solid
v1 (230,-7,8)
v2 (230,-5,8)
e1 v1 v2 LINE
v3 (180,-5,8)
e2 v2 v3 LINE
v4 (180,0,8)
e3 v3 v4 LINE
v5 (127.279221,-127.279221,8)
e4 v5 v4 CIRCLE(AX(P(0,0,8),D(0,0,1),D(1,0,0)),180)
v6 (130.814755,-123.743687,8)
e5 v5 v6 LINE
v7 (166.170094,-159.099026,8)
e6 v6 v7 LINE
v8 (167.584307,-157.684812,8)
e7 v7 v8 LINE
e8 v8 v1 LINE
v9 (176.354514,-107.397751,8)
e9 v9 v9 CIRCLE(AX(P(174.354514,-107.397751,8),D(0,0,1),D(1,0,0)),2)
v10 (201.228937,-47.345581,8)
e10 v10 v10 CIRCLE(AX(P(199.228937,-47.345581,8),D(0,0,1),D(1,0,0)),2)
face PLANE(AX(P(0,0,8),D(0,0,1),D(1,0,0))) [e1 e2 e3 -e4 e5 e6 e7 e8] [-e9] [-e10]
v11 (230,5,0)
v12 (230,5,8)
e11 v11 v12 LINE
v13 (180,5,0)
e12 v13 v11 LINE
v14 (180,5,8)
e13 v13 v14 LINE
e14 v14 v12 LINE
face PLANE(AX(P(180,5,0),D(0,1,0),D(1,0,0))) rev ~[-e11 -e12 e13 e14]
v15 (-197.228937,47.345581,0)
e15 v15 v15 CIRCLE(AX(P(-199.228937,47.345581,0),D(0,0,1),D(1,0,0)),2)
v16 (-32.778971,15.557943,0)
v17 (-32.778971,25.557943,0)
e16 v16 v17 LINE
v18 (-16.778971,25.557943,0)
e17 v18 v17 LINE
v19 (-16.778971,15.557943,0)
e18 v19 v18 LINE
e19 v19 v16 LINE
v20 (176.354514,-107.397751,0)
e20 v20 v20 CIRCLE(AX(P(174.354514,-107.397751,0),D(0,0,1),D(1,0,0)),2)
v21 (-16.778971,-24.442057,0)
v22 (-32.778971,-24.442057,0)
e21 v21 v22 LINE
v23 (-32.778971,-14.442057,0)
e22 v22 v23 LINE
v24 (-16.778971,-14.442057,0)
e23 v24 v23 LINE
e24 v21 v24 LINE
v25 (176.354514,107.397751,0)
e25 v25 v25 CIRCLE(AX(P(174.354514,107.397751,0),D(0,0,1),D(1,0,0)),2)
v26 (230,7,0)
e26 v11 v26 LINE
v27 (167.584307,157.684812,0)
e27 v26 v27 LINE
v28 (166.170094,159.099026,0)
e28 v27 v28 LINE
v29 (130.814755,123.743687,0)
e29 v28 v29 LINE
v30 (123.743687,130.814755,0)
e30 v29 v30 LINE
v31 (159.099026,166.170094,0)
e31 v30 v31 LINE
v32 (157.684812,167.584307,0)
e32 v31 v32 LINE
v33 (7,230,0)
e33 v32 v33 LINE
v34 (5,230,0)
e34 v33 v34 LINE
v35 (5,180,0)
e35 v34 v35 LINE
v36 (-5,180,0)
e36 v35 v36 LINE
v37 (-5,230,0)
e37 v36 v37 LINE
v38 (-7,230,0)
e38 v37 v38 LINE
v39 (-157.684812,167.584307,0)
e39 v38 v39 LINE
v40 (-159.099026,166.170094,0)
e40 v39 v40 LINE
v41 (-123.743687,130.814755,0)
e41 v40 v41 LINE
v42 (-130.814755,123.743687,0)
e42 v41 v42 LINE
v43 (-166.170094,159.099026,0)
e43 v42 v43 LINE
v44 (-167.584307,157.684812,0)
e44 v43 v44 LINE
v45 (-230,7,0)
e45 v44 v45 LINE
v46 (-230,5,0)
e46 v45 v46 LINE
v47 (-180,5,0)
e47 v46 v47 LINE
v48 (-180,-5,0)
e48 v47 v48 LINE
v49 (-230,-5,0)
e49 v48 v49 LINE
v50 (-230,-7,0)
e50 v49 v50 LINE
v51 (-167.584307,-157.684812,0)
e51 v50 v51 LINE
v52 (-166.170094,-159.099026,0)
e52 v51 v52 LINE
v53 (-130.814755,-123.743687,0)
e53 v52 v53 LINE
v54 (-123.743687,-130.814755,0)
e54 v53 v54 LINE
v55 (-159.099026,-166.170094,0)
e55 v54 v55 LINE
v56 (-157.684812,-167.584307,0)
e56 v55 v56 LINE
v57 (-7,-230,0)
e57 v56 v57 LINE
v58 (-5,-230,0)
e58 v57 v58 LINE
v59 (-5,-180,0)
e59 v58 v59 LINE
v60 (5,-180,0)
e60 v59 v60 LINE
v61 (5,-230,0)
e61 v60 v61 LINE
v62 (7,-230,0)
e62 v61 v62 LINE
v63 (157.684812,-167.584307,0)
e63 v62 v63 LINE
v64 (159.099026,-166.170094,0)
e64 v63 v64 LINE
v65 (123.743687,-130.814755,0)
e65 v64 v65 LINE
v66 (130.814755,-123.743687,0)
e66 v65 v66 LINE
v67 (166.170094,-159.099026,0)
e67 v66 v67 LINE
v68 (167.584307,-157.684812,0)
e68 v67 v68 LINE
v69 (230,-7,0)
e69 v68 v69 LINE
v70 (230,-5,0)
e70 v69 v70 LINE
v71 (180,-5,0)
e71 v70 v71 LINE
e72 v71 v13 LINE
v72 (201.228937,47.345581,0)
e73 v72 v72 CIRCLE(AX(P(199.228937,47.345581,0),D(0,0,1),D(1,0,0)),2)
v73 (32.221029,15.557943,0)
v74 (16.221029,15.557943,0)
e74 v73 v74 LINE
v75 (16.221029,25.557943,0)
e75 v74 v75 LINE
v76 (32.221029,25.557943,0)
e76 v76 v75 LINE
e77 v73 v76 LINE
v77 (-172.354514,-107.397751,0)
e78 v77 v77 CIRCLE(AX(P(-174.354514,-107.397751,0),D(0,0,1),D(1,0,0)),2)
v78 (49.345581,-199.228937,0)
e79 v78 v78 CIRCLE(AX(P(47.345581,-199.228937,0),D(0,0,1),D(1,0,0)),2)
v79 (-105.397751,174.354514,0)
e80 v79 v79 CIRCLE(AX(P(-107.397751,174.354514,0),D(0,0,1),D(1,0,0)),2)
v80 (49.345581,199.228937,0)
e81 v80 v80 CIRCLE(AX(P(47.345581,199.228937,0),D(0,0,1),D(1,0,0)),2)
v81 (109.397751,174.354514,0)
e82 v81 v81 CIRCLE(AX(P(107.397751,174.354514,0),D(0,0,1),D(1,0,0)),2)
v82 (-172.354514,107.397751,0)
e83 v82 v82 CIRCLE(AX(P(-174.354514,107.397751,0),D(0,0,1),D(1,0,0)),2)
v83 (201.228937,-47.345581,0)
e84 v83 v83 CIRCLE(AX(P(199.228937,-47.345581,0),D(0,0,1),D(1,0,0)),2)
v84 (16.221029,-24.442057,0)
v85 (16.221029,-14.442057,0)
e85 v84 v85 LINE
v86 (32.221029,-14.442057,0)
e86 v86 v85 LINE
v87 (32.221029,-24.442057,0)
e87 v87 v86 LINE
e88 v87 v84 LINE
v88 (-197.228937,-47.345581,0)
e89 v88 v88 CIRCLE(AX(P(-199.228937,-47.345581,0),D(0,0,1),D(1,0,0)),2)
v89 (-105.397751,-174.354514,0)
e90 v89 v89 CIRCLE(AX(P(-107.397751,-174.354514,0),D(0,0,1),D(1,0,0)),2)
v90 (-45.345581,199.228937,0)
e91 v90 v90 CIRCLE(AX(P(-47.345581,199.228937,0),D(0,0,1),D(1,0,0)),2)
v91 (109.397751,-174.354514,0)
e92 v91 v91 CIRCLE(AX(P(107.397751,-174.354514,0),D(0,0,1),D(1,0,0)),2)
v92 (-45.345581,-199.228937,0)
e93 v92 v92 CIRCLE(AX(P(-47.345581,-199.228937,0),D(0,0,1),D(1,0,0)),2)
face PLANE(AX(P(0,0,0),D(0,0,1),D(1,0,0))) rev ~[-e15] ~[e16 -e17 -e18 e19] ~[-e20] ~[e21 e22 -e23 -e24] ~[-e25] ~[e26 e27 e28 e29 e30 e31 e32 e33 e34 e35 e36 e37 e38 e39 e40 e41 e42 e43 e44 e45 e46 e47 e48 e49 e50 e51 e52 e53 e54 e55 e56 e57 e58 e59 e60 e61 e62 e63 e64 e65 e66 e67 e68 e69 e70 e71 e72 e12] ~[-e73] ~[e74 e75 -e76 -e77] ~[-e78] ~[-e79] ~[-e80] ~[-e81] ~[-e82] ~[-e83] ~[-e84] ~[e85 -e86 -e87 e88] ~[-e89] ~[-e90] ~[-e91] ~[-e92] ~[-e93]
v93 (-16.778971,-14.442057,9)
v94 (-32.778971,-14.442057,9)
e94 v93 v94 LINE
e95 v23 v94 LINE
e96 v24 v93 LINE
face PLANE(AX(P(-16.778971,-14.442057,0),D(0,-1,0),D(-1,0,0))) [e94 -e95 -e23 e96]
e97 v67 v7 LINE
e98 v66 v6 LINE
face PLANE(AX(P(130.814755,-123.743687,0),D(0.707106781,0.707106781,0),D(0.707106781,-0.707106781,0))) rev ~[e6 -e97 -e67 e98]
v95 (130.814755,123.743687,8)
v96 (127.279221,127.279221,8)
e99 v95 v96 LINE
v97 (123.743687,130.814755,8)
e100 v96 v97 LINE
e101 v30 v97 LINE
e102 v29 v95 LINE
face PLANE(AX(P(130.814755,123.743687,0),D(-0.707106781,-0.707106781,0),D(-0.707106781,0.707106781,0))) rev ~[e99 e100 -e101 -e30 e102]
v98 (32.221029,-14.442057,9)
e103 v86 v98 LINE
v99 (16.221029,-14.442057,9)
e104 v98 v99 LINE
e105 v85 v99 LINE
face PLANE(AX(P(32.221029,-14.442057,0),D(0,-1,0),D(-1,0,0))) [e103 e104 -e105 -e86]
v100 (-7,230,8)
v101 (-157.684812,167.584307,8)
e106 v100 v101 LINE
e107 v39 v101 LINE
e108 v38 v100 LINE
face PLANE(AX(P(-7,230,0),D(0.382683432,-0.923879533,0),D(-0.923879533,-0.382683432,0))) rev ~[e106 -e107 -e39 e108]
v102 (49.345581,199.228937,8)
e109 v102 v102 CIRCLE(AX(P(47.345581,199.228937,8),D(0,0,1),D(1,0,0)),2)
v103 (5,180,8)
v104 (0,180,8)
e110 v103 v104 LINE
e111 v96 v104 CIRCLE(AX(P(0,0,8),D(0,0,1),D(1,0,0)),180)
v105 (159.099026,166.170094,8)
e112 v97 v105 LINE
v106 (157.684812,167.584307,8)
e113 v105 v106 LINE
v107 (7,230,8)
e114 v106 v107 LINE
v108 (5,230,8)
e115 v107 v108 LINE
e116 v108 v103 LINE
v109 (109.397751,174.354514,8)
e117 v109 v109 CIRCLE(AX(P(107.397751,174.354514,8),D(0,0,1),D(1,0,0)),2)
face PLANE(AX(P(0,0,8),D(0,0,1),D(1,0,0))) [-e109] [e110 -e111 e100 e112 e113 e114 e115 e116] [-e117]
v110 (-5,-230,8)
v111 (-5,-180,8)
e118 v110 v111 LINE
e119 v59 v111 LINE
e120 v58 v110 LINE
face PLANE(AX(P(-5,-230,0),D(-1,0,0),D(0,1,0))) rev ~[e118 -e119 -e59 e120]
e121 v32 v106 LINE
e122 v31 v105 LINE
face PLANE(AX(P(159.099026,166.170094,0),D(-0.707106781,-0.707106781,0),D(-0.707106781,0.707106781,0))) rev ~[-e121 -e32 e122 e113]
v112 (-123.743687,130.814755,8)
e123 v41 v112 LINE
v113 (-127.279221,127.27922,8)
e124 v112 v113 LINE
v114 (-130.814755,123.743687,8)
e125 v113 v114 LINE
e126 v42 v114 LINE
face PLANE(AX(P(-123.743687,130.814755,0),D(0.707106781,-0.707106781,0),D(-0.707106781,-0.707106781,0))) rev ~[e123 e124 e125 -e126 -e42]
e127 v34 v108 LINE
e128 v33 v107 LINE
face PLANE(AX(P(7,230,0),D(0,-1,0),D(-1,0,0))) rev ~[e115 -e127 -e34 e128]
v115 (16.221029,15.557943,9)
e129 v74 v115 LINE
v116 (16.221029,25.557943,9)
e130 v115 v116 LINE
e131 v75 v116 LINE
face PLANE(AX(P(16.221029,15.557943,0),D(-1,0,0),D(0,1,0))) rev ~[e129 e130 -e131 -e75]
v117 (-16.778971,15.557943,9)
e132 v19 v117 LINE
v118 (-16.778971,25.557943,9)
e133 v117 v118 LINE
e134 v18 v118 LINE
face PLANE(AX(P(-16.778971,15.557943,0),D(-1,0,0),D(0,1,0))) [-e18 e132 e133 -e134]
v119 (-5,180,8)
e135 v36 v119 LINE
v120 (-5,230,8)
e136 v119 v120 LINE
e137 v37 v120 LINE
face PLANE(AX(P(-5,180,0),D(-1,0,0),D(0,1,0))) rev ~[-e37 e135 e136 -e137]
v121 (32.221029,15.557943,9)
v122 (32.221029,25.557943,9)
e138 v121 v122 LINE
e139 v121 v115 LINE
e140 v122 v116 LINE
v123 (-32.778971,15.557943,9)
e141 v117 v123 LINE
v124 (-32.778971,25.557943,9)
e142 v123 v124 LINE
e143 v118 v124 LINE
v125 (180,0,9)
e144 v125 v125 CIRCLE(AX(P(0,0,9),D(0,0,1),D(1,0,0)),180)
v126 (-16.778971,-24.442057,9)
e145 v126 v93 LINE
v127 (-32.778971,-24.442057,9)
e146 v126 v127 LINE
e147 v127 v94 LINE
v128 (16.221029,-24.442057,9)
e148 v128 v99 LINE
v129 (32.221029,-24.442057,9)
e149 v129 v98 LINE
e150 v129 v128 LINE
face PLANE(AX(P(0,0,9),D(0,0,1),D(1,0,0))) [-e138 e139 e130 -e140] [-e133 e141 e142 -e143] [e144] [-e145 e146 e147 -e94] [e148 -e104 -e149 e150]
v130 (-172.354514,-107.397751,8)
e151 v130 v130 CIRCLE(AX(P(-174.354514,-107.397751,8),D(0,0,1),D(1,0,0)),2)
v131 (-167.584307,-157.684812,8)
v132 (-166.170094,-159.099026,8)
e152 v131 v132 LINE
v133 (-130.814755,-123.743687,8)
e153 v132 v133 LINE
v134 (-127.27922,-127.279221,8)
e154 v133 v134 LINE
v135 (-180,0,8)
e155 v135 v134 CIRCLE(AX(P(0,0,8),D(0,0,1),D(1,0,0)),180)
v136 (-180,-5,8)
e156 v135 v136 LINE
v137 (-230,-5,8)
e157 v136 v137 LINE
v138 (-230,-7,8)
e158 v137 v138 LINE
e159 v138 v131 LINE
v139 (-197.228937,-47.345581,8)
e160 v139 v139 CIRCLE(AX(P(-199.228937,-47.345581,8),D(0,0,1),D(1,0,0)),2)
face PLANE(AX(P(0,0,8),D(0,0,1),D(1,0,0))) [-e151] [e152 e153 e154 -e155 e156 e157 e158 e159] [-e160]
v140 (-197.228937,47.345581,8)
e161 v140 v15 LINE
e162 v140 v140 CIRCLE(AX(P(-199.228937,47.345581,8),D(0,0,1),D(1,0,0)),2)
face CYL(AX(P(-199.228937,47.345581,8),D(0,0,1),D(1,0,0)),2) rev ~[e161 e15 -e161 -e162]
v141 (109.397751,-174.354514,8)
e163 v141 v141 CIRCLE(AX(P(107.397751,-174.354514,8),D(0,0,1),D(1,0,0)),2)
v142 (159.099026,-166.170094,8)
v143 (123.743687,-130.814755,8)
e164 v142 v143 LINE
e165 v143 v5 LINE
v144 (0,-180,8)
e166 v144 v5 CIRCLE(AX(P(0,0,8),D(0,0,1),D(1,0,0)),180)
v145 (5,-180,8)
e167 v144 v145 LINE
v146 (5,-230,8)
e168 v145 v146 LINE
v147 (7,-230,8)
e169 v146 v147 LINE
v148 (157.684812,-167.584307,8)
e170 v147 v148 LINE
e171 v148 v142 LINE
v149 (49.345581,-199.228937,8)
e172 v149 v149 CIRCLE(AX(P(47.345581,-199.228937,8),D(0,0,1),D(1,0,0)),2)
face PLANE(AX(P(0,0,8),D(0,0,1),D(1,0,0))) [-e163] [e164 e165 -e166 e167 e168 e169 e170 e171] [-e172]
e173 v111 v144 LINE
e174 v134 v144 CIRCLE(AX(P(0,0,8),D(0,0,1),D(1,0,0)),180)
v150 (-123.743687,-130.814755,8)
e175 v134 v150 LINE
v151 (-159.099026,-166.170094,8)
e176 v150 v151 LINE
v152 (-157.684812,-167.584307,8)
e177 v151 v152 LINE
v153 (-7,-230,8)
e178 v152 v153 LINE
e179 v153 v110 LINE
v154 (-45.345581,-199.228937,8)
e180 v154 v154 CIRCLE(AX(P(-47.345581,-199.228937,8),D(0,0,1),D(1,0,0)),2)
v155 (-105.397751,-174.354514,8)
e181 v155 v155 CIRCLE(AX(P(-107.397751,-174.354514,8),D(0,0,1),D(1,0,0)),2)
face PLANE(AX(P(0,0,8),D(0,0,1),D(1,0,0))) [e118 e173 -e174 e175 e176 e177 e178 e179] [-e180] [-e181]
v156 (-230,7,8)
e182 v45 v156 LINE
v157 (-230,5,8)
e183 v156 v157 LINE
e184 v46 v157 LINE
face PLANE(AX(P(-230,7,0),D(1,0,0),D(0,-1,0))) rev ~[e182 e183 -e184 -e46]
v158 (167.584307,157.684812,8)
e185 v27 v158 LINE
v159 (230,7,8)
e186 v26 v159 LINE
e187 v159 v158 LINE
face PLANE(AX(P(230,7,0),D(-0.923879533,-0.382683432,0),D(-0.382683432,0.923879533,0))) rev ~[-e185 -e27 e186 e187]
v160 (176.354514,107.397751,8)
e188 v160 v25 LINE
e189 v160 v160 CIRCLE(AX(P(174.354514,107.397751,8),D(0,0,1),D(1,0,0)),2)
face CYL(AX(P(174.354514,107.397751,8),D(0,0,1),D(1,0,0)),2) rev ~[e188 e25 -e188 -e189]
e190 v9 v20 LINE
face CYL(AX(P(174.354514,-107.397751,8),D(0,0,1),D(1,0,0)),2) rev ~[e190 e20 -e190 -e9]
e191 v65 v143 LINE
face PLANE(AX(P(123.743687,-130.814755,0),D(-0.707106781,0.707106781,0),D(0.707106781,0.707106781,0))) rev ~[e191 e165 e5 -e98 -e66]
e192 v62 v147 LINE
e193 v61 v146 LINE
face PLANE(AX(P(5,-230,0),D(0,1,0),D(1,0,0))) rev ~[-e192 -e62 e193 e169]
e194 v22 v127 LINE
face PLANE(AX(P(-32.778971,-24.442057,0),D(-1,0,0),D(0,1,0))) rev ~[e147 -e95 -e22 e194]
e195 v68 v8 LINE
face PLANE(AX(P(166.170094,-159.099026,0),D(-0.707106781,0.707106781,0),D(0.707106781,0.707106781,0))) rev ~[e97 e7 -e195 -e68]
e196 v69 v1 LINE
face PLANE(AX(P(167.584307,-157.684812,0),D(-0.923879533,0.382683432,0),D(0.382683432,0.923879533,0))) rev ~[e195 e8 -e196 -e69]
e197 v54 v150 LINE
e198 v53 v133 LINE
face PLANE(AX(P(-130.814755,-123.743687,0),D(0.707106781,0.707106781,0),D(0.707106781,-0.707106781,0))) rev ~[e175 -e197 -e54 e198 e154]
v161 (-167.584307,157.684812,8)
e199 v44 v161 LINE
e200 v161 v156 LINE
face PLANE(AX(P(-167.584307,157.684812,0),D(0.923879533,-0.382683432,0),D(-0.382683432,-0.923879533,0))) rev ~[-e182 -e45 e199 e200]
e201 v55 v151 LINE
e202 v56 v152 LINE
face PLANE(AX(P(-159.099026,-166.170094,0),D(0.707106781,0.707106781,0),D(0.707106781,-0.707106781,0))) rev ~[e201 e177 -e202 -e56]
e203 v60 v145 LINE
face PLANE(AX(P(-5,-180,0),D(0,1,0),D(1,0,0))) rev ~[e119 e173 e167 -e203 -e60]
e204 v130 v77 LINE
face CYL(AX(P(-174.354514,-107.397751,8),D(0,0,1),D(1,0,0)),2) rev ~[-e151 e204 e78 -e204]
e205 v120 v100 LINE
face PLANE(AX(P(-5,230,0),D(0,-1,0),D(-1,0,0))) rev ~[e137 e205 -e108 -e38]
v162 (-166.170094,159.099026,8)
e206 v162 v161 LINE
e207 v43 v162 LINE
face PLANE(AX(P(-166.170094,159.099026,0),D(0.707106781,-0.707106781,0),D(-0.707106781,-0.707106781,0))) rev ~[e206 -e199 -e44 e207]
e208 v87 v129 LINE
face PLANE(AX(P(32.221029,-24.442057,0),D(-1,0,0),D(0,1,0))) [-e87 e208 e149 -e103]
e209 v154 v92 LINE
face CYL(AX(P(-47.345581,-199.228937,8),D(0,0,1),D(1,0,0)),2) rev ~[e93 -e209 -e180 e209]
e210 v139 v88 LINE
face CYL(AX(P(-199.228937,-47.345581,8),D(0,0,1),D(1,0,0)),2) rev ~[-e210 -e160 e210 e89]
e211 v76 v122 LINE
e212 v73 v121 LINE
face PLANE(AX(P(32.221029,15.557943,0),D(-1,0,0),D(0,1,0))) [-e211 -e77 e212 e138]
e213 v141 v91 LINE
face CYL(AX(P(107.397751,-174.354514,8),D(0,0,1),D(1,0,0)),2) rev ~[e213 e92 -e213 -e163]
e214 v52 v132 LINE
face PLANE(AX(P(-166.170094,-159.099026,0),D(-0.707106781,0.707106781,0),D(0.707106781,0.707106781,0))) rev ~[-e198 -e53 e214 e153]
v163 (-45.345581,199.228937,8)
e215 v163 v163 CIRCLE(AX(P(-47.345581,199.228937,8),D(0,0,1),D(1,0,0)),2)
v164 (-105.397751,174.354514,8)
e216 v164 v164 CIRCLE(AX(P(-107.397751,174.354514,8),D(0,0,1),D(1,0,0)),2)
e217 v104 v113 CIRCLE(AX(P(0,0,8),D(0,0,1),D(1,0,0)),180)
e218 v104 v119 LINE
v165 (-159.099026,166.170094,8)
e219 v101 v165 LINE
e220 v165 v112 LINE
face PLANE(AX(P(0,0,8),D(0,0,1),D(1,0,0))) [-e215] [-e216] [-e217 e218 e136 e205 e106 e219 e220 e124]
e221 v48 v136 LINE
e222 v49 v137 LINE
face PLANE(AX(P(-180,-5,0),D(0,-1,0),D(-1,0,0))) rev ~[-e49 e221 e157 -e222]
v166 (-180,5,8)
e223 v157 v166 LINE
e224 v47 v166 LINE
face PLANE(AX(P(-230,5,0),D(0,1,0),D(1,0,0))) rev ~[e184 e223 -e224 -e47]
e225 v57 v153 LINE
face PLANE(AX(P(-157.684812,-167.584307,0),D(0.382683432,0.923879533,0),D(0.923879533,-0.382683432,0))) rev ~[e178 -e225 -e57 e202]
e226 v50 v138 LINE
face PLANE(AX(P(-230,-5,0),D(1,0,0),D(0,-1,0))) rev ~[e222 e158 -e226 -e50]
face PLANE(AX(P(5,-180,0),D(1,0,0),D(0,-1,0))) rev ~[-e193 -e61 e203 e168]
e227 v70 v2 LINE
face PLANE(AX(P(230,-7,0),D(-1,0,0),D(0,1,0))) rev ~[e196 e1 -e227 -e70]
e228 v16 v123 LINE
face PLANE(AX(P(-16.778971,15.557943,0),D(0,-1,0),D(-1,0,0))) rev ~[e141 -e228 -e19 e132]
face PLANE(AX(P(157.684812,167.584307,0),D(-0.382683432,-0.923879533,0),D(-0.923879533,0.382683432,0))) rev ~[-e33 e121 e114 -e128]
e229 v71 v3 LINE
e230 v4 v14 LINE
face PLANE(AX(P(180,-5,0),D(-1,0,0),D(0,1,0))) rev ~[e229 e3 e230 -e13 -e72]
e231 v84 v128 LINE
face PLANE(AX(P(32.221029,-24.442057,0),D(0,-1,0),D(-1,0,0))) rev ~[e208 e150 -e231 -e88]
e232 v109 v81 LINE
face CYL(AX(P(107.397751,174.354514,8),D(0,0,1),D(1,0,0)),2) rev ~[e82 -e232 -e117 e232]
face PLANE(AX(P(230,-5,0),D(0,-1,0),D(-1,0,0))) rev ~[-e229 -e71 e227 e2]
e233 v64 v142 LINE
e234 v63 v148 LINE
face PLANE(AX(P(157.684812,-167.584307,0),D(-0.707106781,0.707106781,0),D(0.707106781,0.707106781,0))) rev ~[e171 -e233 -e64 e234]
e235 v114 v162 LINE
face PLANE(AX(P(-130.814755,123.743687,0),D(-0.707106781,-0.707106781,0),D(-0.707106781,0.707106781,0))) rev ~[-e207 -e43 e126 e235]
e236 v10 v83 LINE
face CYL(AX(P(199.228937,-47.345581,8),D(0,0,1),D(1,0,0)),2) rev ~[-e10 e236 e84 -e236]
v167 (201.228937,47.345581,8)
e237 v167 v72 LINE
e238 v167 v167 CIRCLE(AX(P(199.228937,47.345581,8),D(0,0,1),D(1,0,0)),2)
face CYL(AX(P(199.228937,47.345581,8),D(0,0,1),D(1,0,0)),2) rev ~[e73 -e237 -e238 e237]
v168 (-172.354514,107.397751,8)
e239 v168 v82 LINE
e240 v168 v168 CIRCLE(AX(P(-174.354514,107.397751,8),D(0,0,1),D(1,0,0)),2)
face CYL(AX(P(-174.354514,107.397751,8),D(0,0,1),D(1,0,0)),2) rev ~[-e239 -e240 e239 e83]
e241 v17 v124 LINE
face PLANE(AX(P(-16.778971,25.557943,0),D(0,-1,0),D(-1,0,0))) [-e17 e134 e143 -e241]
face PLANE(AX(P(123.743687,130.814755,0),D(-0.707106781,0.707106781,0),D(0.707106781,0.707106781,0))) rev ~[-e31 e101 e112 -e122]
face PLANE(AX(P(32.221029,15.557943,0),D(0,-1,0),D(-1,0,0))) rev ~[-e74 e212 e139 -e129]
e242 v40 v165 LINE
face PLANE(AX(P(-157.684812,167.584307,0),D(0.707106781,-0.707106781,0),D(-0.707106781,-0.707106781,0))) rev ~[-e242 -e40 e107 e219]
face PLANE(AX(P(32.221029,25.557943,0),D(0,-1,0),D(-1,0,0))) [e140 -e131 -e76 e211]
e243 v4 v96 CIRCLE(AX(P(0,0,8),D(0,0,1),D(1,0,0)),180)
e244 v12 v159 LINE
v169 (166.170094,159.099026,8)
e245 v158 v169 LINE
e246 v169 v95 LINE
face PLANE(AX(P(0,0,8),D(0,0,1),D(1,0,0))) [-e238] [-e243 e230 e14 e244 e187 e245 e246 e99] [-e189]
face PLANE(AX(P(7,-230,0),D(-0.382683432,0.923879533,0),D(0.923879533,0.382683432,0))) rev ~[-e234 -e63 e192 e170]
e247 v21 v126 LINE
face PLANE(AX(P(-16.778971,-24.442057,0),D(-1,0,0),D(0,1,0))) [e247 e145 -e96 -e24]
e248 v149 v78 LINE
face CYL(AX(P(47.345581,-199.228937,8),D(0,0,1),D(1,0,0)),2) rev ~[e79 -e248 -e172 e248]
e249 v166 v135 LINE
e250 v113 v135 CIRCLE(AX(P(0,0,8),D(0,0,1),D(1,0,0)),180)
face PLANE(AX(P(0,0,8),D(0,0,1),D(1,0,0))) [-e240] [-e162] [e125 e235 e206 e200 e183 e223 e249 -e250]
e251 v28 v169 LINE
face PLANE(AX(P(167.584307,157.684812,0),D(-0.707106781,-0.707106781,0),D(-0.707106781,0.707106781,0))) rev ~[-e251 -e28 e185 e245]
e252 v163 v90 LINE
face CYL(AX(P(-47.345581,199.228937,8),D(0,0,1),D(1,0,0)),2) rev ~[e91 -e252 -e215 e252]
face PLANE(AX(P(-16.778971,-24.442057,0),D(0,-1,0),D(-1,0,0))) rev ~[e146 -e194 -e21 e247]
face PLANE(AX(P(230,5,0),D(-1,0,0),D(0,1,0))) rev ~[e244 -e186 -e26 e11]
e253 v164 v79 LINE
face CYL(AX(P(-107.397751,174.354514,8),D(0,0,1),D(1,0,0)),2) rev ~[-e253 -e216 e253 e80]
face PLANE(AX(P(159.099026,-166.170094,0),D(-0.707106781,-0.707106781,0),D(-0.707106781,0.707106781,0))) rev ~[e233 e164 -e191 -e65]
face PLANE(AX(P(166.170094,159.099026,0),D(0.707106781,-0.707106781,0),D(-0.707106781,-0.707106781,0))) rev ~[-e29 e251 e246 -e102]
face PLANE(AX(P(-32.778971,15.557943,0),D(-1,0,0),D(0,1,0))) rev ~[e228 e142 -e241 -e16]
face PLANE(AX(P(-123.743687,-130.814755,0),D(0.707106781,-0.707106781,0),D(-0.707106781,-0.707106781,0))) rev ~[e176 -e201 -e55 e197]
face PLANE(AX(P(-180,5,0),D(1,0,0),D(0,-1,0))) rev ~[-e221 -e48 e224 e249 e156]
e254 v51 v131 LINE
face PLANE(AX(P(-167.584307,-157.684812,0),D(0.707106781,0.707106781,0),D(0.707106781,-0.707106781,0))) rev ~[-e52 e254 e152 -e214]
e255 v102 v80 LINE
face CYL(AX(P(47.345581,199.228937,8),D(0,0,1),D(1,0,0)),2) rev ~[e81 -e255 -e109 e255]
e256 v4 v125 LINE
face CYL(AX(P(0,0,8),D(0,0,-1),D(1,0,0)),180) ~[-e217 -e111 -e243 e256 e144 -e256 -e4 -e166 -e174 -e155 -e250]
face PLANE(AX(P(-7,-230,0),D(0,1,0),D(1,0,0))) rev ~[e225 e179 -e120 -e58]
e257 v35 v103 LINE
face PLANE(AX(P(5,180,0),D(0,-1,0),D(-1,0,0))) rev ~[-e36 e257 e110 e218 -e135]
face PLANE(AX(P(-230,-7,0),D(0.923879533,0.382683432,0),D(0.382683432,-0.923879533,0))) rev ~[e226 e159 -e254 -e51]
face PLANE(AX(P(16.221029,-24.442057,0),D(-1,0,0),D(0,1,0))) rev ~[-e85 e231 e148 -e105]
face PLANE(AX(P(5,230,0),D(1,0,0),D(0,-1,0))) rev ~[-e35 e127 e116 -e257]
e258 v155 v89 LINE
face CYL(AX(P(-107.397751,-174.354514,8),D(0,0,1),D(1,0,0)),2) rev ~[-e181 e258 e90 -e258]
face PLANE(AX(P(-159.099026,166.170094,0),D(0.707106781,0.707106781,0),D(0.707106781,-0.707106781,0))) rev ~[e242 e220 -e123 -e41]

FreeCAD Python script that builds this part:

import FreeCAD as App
import Part
import Sketcher

V = App.Vector
Q = App.Units.Quantity


def add_polygon(sketch, points):
    """Adds a closed chain of lines whose ends are joined by coincident constraints."""
    first, n = sketch.GeometryCount, len(points)
    for a, b in zip(points, points[1:] + points[:1]):
        sketch.addGeometry(Part.LineSegment(App.Vector(*a, 0), App.Vector(*b, 0)), False)
    for i in range(n):
        sketch.addConstraint(Sketcher.Constraint("Coincident", first + i, 2, first + (i + 1) % n, 1))

doc = App.newDocument("Part")
body = doc.addObject("PartDesign::Body", "Body")

sketch1 = body.newObject("Sketcher::SketchObject", "Sketch")
sketch1.AttachmentSupport = (doc.getObject("XY_Plane"), [""])
sketch1.MapMode = "FlatFace"
add_polygon(sketch1, [(5, 230), (5, 180), (-5, 180), (-5, 230), (-7, 230), (-157.684812, 167.584307), (-159.099026, 166.170094), (-123.743687, 130.814755), (-130.814755, 123.743687), (-166.170094, 159.099026), (-167.584307, 157.684812), (-230, 7), (-230, 5), (-180, 5), (-180, -5), (-230, -5), (-230, -7), (-167.584307, -157.684812), (-166.170094, -159.099026), (-130.814755, -123.743687), (-123.743687, -130.814755), (-159.099026, -166.170094), (-157.684812, -167.584307), (-7, -230), (-5, -230), (-5, -180), (5, -180), (5, -230), (7, -230), (157.684812, -167.584307), (159.099026, -166.170094), (123.743687, -130.814755), (130.814755, -123.743687), (166.170094, -159.099026), (167.584307, -157.684812), (230, -7), (230, -5), (180, -5), (180, 5), (230, 5), (230, 7), (167.584307, 157.684812), (166.170094, 159.099026), (130.814755, 123.743687), (123.743687, 130.814755), (159.099026, 166.170094), (157.684812, 167.584307), (7, 230)])
sketch1.addConstraint([
    Sketcher.Constraint("Vertical", 0),
    Sketcher.Constraint("Horizontal", 1),
    Sketcher.Constraint("Vertical", 2),
    Sketcher.Constraint("Horizontal", 3),
    Sketcher.Constraint("Vertical", 11),
    Sketcher.Constraint("Horizontal", 12),
    Sketcher.Constraint("Vertical", 13),
    Sketcher.Constraint("Horizontal", 14),
    Sketcher.Constraint("Vertical", 15),
    Sketcher.Constraint("Horizontal", 23),
    Sketcher.Constraint("Vertical", 24),
    Sketcher.Constraint("Horizontal", 25),
    Sketcher.Constraint("Vertical", 26),
    Sketcher.Constraint("Horizontal", 27),
    Sketcher.Constraint("Vertical", 35),
    Sketcher.Constraint("Horizontal", 36),
    Sketcher.Constraint("Vertical", 37),
    Sketcher.Constraint("Horizontal", 38),
    Sketcher.Constraint("Vertical", 39),
    Sketcher.Constraint("Horizontal", 47),
    Sketcher.Constraint("Symmetric", 0, 2, 24, 2, -1, 1),
    Sketcher.Constraint("Symmetric", 2, 2, 26, 2, -1, 1),
    Sketcher.Constraint("Symmetric", 4, 2, 28, 2, -1, 1),
    Sketcher.Constraint("Symmetric", 5, 2, 29, 2, -1, 1),
    Sketcher.Constraint("Symmetric", 6, 2, 30, 2, -1, 1),
    Sketcher.Constraint("Symmetric", 7, 2, 31, 2, -1, 1),
    Sketcher.Constraint("Symmetric", 8, 2, 32, 2, -1, 1),
    Sketcher.Constraint("Symmetric", 9, 2, 33, 2, -1, 1),
    Sketcher.Constraint("Symmetric", 10, 2, 34, 2, -1, 1),
    Sketcher.Constraint("Symmetric", 12, 2, 36, 2, -1, 1),
    Sketcher.Constraint("Symmetric", 14, 2, 38, 2, -1, 1),
    Sketcher.Constraint("Symmetric", 16, 2, 40, 2, -1, 1),
    Sketcher.Constraint("Symmetric", 17, 2, 41, 2, -1, 1),
    Sketcher.Constraint("Symmetric", 18, 2, 42, 2, -1, 1),
    Sketcher.Constraint("Symmetric", 19, 2, 43, 2, -1, 1),
    Sketcher.Constraint("Symmetric", 20, 2, 44, 2, -1, 1),
    Sketcher.Constraint("Symmetric", 21, 2, 45, 2, -1, 1),
    Sketcher.Constraint("Symmetric", 22, 2, 46, 2, -1, 1),
    Sketcher.Constraint("Symmetric", 23, 2, 26, 2, -2),
    Sketcher.Constraint("Symmetric", 21, 2, 28, 2, -2),
    Sketcher.Constraint("Symmetric", 20, 2, 29, 2, -2),
    Sketcher.Constraint("Symmetric", 19, 2, 30, 2, -2),
    Sketcher.Constraint("Symmetric", 18, 2, 31, 2, -2),
    Sketcher.Constraint("Symmetric", 17, 2, 32, 2, -2),
    Sketcher.Constraint("Symmetric", 16, 2, 33, 2, -2),
    Sketcher.Constraint("Symmetric", 15, 2, 34, 2, -2),
    Sketcher.Constraint("Perpendicular", 5, 6),
    Sketcher.Constraint("Perpendicular", 6, 7),
    Sketcher.Constraint("Perpendicular", 7, 8),
    Sketcher.Constraint("Perpendicular", 8, 9),
    Sketcher.Constraint("Perpendicular", 4, 16),
    Sketcher.Constraint("Perpendicular", 9, 17),
    Sketcher.Constraint("Perpendicular", 10, 22),
    Sketcher.Constraint("Perpendicular", 16, 28),
    Sketcher.Constraint("Perpendicular", 28, 40),
    Sketcher.Constraint("Horizontal", 14, 2, 35, 2),
    Sketcher.Constraint("Equal", 38, 0),
    Sketcher.Constraint("Equal", 47, 11),
    Sketcher.Constraint("Equal", 25, 13),
    Sketcher.Constraint("Equal", 6, 8),
    Sketcher.Constraint("Equal", 5, 9),
    Sketcher.Constraint("Equal", 4, 10),
    Sketcher.Constraint("DistanceX", 1, 2, 1, 1, 10.0),
    Sketcher.Constraint("DistanceX", 3, 2, 3, 1, 2.0),
    Sketcher.Constraint("DistanceX", 12, 1, 12, 2, 50.0),
    Sketcher.Constraint("Distance", 5, 2.0),
    Sketcher.Constraint("Distance", 6, 50.0),
    Sketcher.Constraint("Distance", 7, 10.0),
    Sketcher.Constraint("DistanceY", -1, 1, 0, 2, 180.0),
    Sketcher.Constraint("Angle", 4, Q("-157.5 deg")),
])
pad1 = body.newObject("PartDesign::Pad", "Pad")
pad1.Profile = sketch1
pad1.Length = 8

sketch2 = body.newObject("Sketcher::SketchObject", "Sketch001")
sketch2.AttachmentSupport = (doc.getObject("XY_Plane"), [""])
sketch2.MapMode = "FlatFace"
sketch2.AttachmentOffset = App.Placement(V(0, 0, 8), App.Rotation())
sketch2.addGeometry(Part.Circle(V(0, 0, 0), V(0, 0, 1), 180), False)
sketch2.addConstraint([
    Sketcher.Constraint("Coincident", 0, 3, -1, 1),
    Sketcher.Constraint("Diameter", 0, 360.0),
])
pad2 = body.newObject("PartDesign::Pad", "Pad001")
pad2.Profile = sketch2
pad2.Length = 1

sketch3 = body.newObject("Sketcher::SketchObject", "Sketch002")
sketch3.AttachmentSupport = (doc.getObject("XY_Plane"), [""])
sketch3.MapMode = "FlatFace"
sketch3.AttachmentOffset = App.Placement(V(0, 0, 8), App.Rotation())
sketch3.addGeometry(Part.Circle(V(107.397751, 174.354514, 0), V(0, 0, 1), 2), False)
sketch3.addConstraint([
    Sketcher.Constraint("Diameter", 0, 4.0),
    Sketcher.Constraint("DistanceX", -1, 1, 0, 3, 107.397751),
    Sketcher.Constraint("DistanceY", -1, 1, 0, 3, 174.354514),
])
pocket1 = body.newObject("PartDesign::Pocket", "Pocket")
pocket1.Profile = sketch3
pocket1.Type = "UpToFirst"

sketch4 = body.newObject("Sketcher::SketchObject", "Sketch003")
sketch4.AttachmentSupport = (doc.getObject("XY_Plane"), [""])
sketch4.MapMode = "FlatFace"
sketch4.AttachmentOffset = App.Placement(V(0, 0, 8), App.Rotation())
sketch4.addGeometry(Part.Circle(V(47.345581, 199.228937, 0), V(0, 0, 1), 2), False)
sketch4.addConstraint([
    Sketcher.Constraint("Diameter", 0, 4.0),
    Sketcher.Constraint("DistanceX", -1, 1, 0, 3, 47.345581),
    Sketcher.Constraint("DistanceY", -1, 1, 0, 3, 199.228937),
])
pocket2 = body.newObject("PartDesign::Pocket", "Pocket001")
pocket2.Profile = sketch4
pocket2.Type = "UpToFirst"

sketch5 = body.newObject("Sketcher::SketchObject", "Sketch004")
sketch5.AttachmentSupport = (doc.getObject("XY_Plane"), [""])
sketch5.MapMode = "FlatFace"
sketch5.AttachmentOffset = App.Placement(V(0, 0, 8), App.Rotation())
sketch5.addGeometry(Part.Circle(V(199.228937, 47.345581, 0), V(0, 0, 1), 2), False)
sketch5.addConstraint([
    Sketcher.Constraint("Diameter", 0, 4.0),
    Sketcher.Constraint("DistanceY", -1, 1, 0, 3, 47.345581),
    Sketcher.Constraint("DistanceX", -1, 1, 0, 3, 199.228937),
])
pocket3 = body.newObject("PartDesign::Pocket", "Pocket002")
pocket3.Profile = sketch5
pocket3.Type = "UpToFirst"

sketch6 = body.newObject("Sketcher::SketchObject", "Sketch005")
sketch6.AttachmentSupport = (doc.getObject("XY_Plane"), [""])
sketch6.MapMode = "FlatFace"
sketch6.AttachmentOffset = App.Placement(V(0, 0, 8), App.Rotation())
sketch6.addGeometry(Part.Circle(V(174.354514, 107.397751, 0), V(0, 0, 1), 2), False)
sketch6.addConstraint([
    Sketcher.Constraint("Diameter", 0, 4.0),
    Sketcher.Constraint("DistanceY", -1, 1, 0, 3, 107.397751),
    Sketcher.Constraint("DistanceX", -1, 1, 0, 3, 174.354514),
])
pocket4 = body.newObject("PartDesign::Pocket", "Pocket003")
pocket4.Profile = sketch6
pocket4.Type = "UpToFirst"

sketch7 = body.newObject("Sketcher::SketchObject", "Sketch006")
sketch7.AttachmentSupport = (doc.getObject("XY_Plane"), [""])
sketch7.MapMode = "FlatFace"
sketch7.AttachmentOffset = App.Placement(V(0, 0, 8), App.Rotation())
sketch7.addGeometry(Part.Circle(V(174.354514, -107.397751, 0), V(0, 0, 1), 2), False)
sketch7.addConstraint([
    Sketcher.Constraint("Diameter", 0, 4.0),
    Sketcher.Constraint("DistanceY", 0, 3, -1, 1, 107.397751),
    Sketcher.Constraint("DistanceX", -1, 1, 0, 3, 174.354514),
])
pocket5 = body.newObject("PartDesign::Pocket", "Pocket004")
pocket5.Profile = sketch7
pocket5.Type = "UpToFirst"

sketch8 = body.newObject("Sketcher::SketchObject", "Sketch007")
sketch8.AttachmentSupport = (doc.getObject("XY_Plane"), [""])
sketch8.MapMode = "FlatFace"
sketch8.AttachmentOffset = App.Placement(V(0, 0, 8), App.Rotation())
sketch8.addGeometry(Part.Circle(V(199.228937, -47.345581, 0), V(0, 0, 1), 2), False)
sketch8.addConstraint([
    Sketcher.Constraint("Diameter", 0, 4.0),
    Sketcher.Constraint("DistanceY", 0, 3, -1, 1, 47.345581),
    Sketcher.Constraint("DistanceX", -1, 1, 0, 3, 199.228937),
])
pocket6 = body.newObject("PartDesign::Pocket", "Pocket005")
pocket6.Profile = sketch8
pocket6.Type = "UpToFirst"

sketch9 = body.newObject("Sketcher::SketchObject", "Sketch008")
sketch9.AttachmentSupport = (doc.getObject("XY_Plane"), [""])
sketch9.MapMode = "FlatFace"
sketch9.AttachmentOffset = App.Placement(V(0, 0, 8), App.Rotation())
sketch9.addGeometry(Part.Circle(V(47.345581, -199.228937, 0), V(0, 0, 1), 2), False)
sketch9.addConstraint([
    Sketcher.Constraint("Diameter", 0, 4.0),
    Sketcher.Constraint("DistanceX", -1, 1, 0, 3, 47.345581),
    Sketcher.Constraint("DistanceY", 0, 3, -1, 1, 199.228937),
])
pocket7 = body.newObject("PartDesign::Pocket", "Pocket006")
pocket7.Profile = sketch9
pocket7.Type = "UpToFirst"

sketch10 = body.newObject("Sketcher::SketchObject", "Sketch009")
sketch10.AttachmentSupport = (doc.getObject("XY_Plane"), [""])
sketch10.MapMode = "FlatFace"
sketch10.AttachmentOffset = App.Placement(V(0, 0, 8), App.Rotation())
sketch10.addGeometry(Part.Circle(V(107.397751, -174.354514, 0), V(0, 0, 1), 2), False)
sketch10.addConstraint([
    Sketcher.Constraint("Diameter", 0, 4.0),
    Sketcher.Constraint("DistanceX", -1, 1, 0, 3, 107.397751),
    Sketcher.Constraint("DistanceY", 0, 3, -1, 1, 174.354514),
])
pocket8 = body.newObject("PartDesign::Pocket", "Pocket007")
pocket8.Profile = sketch10
pocket8.Type = "UpToFirst"

sketch11 = body.newObject("Sketcher::SketchObject", "Sketch010")
sketch11.AttachmentSupport = (doc.getObject("XY_Plane"), [""])
sketch11.MapMode = "FlatFace"
sketch11.AttachmentOffset = App.Placement(V(0, 0, 8), App.Rotation())
sketch11.addGeometry(Part.Circle(V(-107.397751, -174.354514, 0), V(0, 0, 1), 2), False)
sketch11.addConstraint([
    Sketcher.Constraint("Diameter", 0, 4.0),
    Sketcher.Constraint("DistanceX", 0, 3, -1, 1, 107.397751),
    Sketcher.Constraint("DistanceY", 0, 3, -1, 1, 174.354514),
])
pocket9 = body.newObject("PartDesign::Pocket", "Pocket008")
pocket9.Profile = sketch11
pocket9.Type = "UpToFirst"

sketch12 = body.newObject("Sketcher::SketchObject", "Sketch011")
sketch12.AttachmentSupport = (doc.getObject("XY_Plane"), [""])
sketch12.MapMode = "FlatFace"
sketch12.AttachmentOffset = App.Placement(V(0, 0, 8), App.Rotation())
sketch12.addGeometry(Part.Circle(V(-47.345581, -199.228937, 0), V(0, 0, 1), 2), False)
sketch12.addConstraint([
    Sketcher.Constraint("Diameter", 0, 4.0),
    Sketcher.Constraint("DistanceX", 0, 3, -1, 1, 47.345581),
    Sketcher.Constraint("DistanceY", 0, 3, -1, 1, 199.228937),
])
pocket10 = body.newObject("PartDesign::Pocket", "Pocket009")
pocket10.Profile = sketch12
pocket10.Type = "UpToFirst"

sketch13 = body.newObject("Sketcher::SketchObject", "Sketch012")
sketch13.AttachmentSupport = (doc.getObject("XY_Plane"), [""])
sketch13.MapMode = "FlatFace"
sketch13.AttachmentOffset = App.Placement(V(0, 0, 8), App.Rotation())
sketch13.addGeometry(Part.Circle(V(-199.228937, -47.345581, 0), V(0, 0, 1), 2), False)
sketch13.addConstraint([
    Sketcher.Constraint("Diameter", 0, 4.0),
    Sketcher.Constraint("DistanceY", 0, 3, -1, 1, 47.345581),
    Sketcher.Constraint("DistanceX", 0, 3, -1, 1, 199.228937),
])
pocket11 = body.newObject("PartDesign::Pocket", "Pocket010")
pocket11.Profile = sketch13
pocket11.Type = "UpToFirst"

sketch14 = body.newObject("Sketcher::SketchObject", "Sketch013")
sketch14.AttachmentSupport = (doc.getObject("XY_Plane"), [""])
sketch14.MapMode = "FlatFace"
sketch14.AttachmentOffset = App.Placement(V(0, 0, 8), App.Rotation())
sketch14.addGeometry(Part.Circle(V(-174.354514, -107.397751, 0), V(0, 0, 1), 2), False)
sketch14.addConstraint([
    Sketcher.Constraint("Diameter", 0, 4.0),
    Sketcher.Constraint("DistanceY", 0, 3, -1, 1, 107.397751),
    Sketcher.Constraint("DistanceX", 0, 3, -1, 1, 174.354514),
])
pocket12 = body.newObject("PartDesign::Pocket", "Pocket011")
pocket12.Profile = sketch14
pocket12.Type = "UpToFirst"

sketch15 = body.newObject("Sketcher::SketchObject", "Sketch014")
sketch15.AttachmentSupport = (doc.getObject("XY_Plane"), [""])
sketch15.MapMode = "FlatFace"
sketch15.AttachmentOffset = App.Placement(V(0, 0, 8), App.Rotation())
sketch15.addGeometry(Part.Circle(V(-174.354514, 107.397751, 0), V(0, 0, 1), 2), False)
sketch15.addConstraint([
    Sketcher.Constraint("Diameter", 0, 4.0),
    Sketcher.Constraint("DistanceY", -1, 1, 0, 3, 107.397751),
    Sketcher.Constraint("DistanceX", 0, 3, -1, 1, 174.354514),
])
pocket13 = body.newObject("PartDesign::Pocket", "Pocket012")
pocket13.Profile = sketch15
pocket13.Type = "UpToFirst"

sketch16 = body.newObject("Sketcher::SketchObject", "Sketch015")
sketch16.AttachmentSupport = (doc.getObject("XY_Plane"), [""])
sketch16.MapMode = "FlatFace"
sketch16.AttachmentOffset = App.Placement(V(0, 0, 8), App.Rotation())
sketch16.addGeometry(Part.Circle(V(-199.228937, 47.345581, 0), V(0, 0, 1), 2), False)
sketch16.addConstraint([
    Sketcher.Constraint("Diameter", 0, 4.0),
    Sketcher.Constraint("DistanceY", -1, 1, 0, 3, 47.345581),
    Sketcher.Constraint("DistanceX", 0, 3, -1, 1, 199.228937),
])
pocket14 = body.newObject("PartDesign::Pocket", "Pocket013")
pocket14.Profile = sketch16
pocket14.Type = "UpToFirst"

sketch17 = body.newObject("Sketcher::SketchObject", "Sketch016")
sketch17.AttachmentSupport = (doc.getObject("XY_Plane"), [""])
sketch17.MapMode = "FlatFace"
sketch17.AttachmentOffset = App.Placement(V(0, 0, 8), App.Rotation())
sketch17.addGeometry(Part.Circle(V(-47.345581, 199.228937, 0), V(0, 0, 1), 2), False)
sketch17.addConstraint([
    Sketcher.Constraint("Diameter", 0, 4.0),
    Sketcher.Constraint("DistanceX", 0, 3, -1, 1, 47.345581),
    Sketcher.Constraint("DistanceY", -1, 1, 0, 3, 199.228937),
])
pocket15 = body.newObject("PartDesign::Pocket", "Pocket014")
pocket15.Profile = sketch17
pocket15.Type = "UpToFirst"

sketch18 = body.newObject("Sketcher::SketchObject", "Sketch017")
sketch18.AttachmentSupport = (doc.getObject("XY_Plane"), [""])
sketch18.MapMode = "FlatFace"
sketch18.AttachmentOffset = App.Placement(V(0, 0, 8), App.Rotation())
sketch18.addGeometry(Part.Circle(V(-107.397751, 174.354514, 0), V(0, 0, 1), 2), False)
sketch18.addConstraint([
    Sketcher.Constraint("Diameter", 0, 4.0),
    Sketcher.Constraint("DistanceX", 0, 3, -1, 1, 107.397751),
    Sketcher.Constraint("DistanceY", -1, 1, 0, 3, 174.354514),
])
pocket16 = body.newObject("PartDesign::Pocket", "Pocket015")
pocket16.Profile = sketch18
pocket16.Type = "UpToFirst"

sketch19 = body.newObject("Sketcher::SketchObject", "Sketch018")
sketch19.AttachmentSupport = (doc.getObject("XY_Plane"), [""])
sketch19.MapMode = "FlatFace"
add_polygon(sketch19, [(32.221029, -14.442057), (32.221029, -24.442057), (16.221029, -24.442057), (16.221029, -14.442057)])
sketch19.addConstraint([
    Sketcher.Constraint("Vertical", 0),
    Sketcher.Constraint("Horizontal", 1),
    Sketcher.Constraint("Vertical", 2),
    Sketcher.Constraint("Horizontal", 3),
    Sketcher.Constraint("DistanceX", 1, 2, 1, 1, 16.0),
    Sketcher.Constraint("DistanceY", 0, 2, 0, 1, 10.0),
    Sketcher.Constraint("DistanceX", -1, 1, 0, 2, 32.221029),
    Sketcher.Constraint("DistanceY", 0, 2, -1, 1, 24.442057),
])
pocket17 = body.newObject("PartDesign::Pocket", "Pocket016")
pocket17.Profile = sketch19
pocket17.Type = "UpToFirst"
pocket17.Reversed = True

sketch20 = body.newObject("Sketcher::SketchObject", "Sketch019")
sketch20.AttachmentSupport = (doc.getObject("XY_Plane"), [""])
sketch20.MapMode = "FlatFace"
add_polygon(sketch20, [(32.221029, 25.557943), (32.221029, 15.557943), (16.221029, 15.557943), (16.221029, 25.557943)])
sketch20.addConstraint([
    Sketcher.Constraint("Vertical", 0),
    Sketcher.Constraint("Horizontal", 1),
    Sketcher.Constraint("Vertical", 2),
    Sketcher.Constraint("Horizontal", 3),
    Sketcher.Constraint("DistanceX", 1, 2, 1, 1, 16.0),
    Sketcher.Constraint("DistanceY", 0, 2, 0, 1, 10.0),
    Sketcher.Constraint("DistanceX", -1, 1, 0, 2, 32.221029),
    Sketcher.Constraint("DistanceY", -1, 1, 0, 2, 15.557943),
])
pocket18 = body.newObject("PartDesign::Pocket", "Pocket017")
pocket18.Profile = sketch20
pocket18.Type = "UpToFirst"
pocket18.Reversed = True

sketch21 = body.newObject("Sketcher::SketchObject", "Sketch020")
sketch21.AttachmentSupport = (doc.getObject("XY_Plane"), [""])
sketch21.MapMode = "FlatFace"
add_polygon(sketch21, [(-16.778971, 25.557943), (-16.778971, 15.557943), (-32.778971, 15.557943), (-32.778971, 25.557943)])
sketch21.addConstraint([
    Sketcher.Constraint("Vertical", 0),
    Sketcher.Constraint("Horizontal", 1),
    Sketcher.Constraint("Vertical", 2),
    Sketcher.Constraint("Horizontal", 3),
    Sketcher.Constraint("DistanceX", 1, 2, 1, 1, 16.0),
    Sketcher.Constraint("DistanceY", 0, 2, 0, 1, 10.0),
    Sketcher.Constraint("DistanceX", 0, 2, -1, 1, 16.778971),
    Sketcher.Constraint("DistanceY", -1, 1, 0, 2, 15.557943),
])
pocket19 = body.newObject("PartDesign::Pocket", "Pocket018")
pocket19.Profile = sketch21
pocket19.Type = "UpToFirst"
pocket19.Reversed = True

sketch22 = body.newObject("Sketcher::SketchObject", "Sketch021")
sketch22.AttachmentSupport = (doc.getObject("XY_Plane"), [""])
sketch22.MapMode = "FlatFace"
add_polygon(sketch22, [(-16.778971, -14.442057), (-16.778971, -24.442057), (-32.778971, -24.442057), (-32.778971, -14.442057)])
sketch22.addConstraint([
    Sketcher.Constraint("Vertical", 0),
    Sketcher.Constraint("Horizontal", 1),
    Sketcher.Constraint("Vertical", 2),
    Sketcher.Constraint("Horizontal", 3),
    Sketcher.Constraint("DistanceX", 1, 2, 1, 1, 16.0),
    Sketcher.Constraint("DistanceY", 0, 2, 0, 1, 10.0),
    Sketcher.Constraint("DistanceX", 0, 2, -1, 1, 16.778971),
    Sketcher.Constraint("DistanceY", 0, 2, -1, 1, 24.442057),
])
pocket20 = body.newObject("PartDesign::Pocket", "Pocket019")
pocket20.Profile = sketch22
pocket20.Type = "UpToFirst"
pocket20.Reversed = True

doc.recompute()
